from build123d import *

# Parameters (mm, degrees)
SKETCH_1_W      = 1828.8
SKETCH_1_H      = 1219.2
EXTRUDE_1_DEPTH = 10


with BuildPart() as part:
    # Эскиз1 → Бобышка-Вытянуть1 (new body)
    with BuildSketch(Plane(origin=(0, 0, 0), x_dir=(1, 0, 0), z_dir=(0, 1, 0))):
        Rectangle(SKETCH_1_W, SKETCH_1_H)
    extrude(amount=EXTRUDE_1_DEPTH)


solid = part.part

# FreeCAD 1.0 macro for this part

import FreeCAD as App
import Part
import Sketcher

V = App.Vector
Q = App.Units.Quantity

doc = App.newDocument("Part")
params = doc.addObject("Spreadsheet::Sheet", "Params")
for row, (alias, value) in enumerate([
    ("sketch1_width", "72 in"),
    ("sketch1_height", "48 in"),
    ("pad1_length", "10 mm"),
], start=1):
    params.set(f"A{row}", alias)
    params.set(f"B{row}", "=" + value)
    params.setAlias(f"B{row}", alias)

body = doc.addObject("PartDesign::Body", "Body")

sketch1 = body.newObject("Sketcher::SketchObject", "Sketch")
sketch1.AttachmentSupport = (doc.getObject("XZ_Plane"), [""])
sketch1.MapMode = "FlatFace"
sketch1.addGeometry(Part.LineSegment(V(-914.4, -609.6, 0), V(-914.4, 609.6, 0)), False)
sketch1.addGeometry(Part.LineSegment(V(-914.4, 609.6, 0), V(914.4, 609.6, 0)), False)
sketch1.addGeometry(Part.LineSegment(V(914.4, 609.6, 0), V(914.4, -609.6, 0)), False)
sketch1.addGeometry(Part.LineSegment(V(914.4, -609.6, 0), V(-914.4, -609.6, 0)), False)
sketch1.addConstraint(Sketcher.Constraint("Coincident", 0, 2, 1, 1))
sketch1.addConstraint(Sketcher.Constraint("Coincident", 1, 2, 2, 1))
sketch1.addConstraint(Sketcher.Constraint("Coincident", 2, 2, 3, 1))
sketch1.addConstraint(Sketcher.Constraint("Coincident", 3, 2, 0, 1))
sketch1.addConstraint(Sketcher.Constraint("Vertical", 0))
sketch1.addConstraint(Sketcher.Constraint("Horizontal", 1))
sketch1.addConstraint(Sketcher.Constraint("Vertical", 2))
sketch1.addConstraint(Sketcher.Constraint("Horizontal", 3))
sketch1.addConstraint(Sketcher.Constraint("Symmetric", 0, 2, 2, 2, -1, 1))
sketch1.addConstraint(Sketcher.Constraint("DistanceX", 1, 1, 1, 2, Q("72 in")))
sketch1.addConstraint(Sketcher.Constraint("DistanceY", 0, 1, 0, 2, Q("48 in")))
sketch1.setExpression("Constraints[9]", "Params.sketch1_width")
sketch1.setExpression("Constraints[10]", "Params.sketch1_height")
pad1 = body.newObject("PartDesign::Pad", "Pad")
pad1.Profile = sketch1
pad1.setExpression("Length", "Params.pad1_length")
pad1.Reversed = True

doc.recompute()
